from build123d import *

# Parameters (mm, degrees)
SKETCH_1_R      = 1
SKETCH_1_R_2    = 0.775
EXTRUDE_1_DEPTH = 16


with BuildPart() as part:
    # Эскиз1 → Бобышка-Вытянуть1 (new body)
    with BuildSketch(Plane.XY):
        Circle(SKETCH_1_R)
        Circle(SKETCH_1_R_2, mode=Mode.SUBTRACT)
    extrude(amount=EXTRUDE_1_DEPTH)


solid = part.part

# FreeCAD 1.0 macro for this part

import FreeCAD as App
import Part
import Sketcher
from FreeCAD import Vector
Q = App.Units.Quantity

doc = App.newDocument("Part")
body = doc.addObject("PartDesign::Body", "Body")

# Sketch on XY plane
sketch1 = doc.addObject("Sketcher::SketchObject", "Sketch")
body.addObject(sketch1)
sketch1.AttachmentSupport = (doc.XY_Plane, [""])
sketch1.MapMode = "FlatFace"
sketch1.addGeometry(Part.Circle(Vector(0, 0, 0), Vector(0, 0, 1), 1), False)
sketch1.addGeometry(Part.Circle(Vector(0, 0, 0), Vector(0, 0, 1), 0.8), False)
sketch1.addConstraint(Sketcher.Constraint("Coincident", 0, 3, -1, 1))
sketch1.addConstraint(Sketcher.Constraint("Coincident", 1, 3, -1, 1))
sketch1.addConstraint(Sketcher.Constraint("Diameter", 0, Q("2 mm")))
sketch1.addConstraint(Sketcher.Constraint("Diameter", 1, Q("1.55 mm")))
pad1 = doc.addObject("PartDesign::Pad", "Pad")
body.addObject(pad1)
pad1.Profile = sketch1
pad1.Length = 16

doc.recompute()
